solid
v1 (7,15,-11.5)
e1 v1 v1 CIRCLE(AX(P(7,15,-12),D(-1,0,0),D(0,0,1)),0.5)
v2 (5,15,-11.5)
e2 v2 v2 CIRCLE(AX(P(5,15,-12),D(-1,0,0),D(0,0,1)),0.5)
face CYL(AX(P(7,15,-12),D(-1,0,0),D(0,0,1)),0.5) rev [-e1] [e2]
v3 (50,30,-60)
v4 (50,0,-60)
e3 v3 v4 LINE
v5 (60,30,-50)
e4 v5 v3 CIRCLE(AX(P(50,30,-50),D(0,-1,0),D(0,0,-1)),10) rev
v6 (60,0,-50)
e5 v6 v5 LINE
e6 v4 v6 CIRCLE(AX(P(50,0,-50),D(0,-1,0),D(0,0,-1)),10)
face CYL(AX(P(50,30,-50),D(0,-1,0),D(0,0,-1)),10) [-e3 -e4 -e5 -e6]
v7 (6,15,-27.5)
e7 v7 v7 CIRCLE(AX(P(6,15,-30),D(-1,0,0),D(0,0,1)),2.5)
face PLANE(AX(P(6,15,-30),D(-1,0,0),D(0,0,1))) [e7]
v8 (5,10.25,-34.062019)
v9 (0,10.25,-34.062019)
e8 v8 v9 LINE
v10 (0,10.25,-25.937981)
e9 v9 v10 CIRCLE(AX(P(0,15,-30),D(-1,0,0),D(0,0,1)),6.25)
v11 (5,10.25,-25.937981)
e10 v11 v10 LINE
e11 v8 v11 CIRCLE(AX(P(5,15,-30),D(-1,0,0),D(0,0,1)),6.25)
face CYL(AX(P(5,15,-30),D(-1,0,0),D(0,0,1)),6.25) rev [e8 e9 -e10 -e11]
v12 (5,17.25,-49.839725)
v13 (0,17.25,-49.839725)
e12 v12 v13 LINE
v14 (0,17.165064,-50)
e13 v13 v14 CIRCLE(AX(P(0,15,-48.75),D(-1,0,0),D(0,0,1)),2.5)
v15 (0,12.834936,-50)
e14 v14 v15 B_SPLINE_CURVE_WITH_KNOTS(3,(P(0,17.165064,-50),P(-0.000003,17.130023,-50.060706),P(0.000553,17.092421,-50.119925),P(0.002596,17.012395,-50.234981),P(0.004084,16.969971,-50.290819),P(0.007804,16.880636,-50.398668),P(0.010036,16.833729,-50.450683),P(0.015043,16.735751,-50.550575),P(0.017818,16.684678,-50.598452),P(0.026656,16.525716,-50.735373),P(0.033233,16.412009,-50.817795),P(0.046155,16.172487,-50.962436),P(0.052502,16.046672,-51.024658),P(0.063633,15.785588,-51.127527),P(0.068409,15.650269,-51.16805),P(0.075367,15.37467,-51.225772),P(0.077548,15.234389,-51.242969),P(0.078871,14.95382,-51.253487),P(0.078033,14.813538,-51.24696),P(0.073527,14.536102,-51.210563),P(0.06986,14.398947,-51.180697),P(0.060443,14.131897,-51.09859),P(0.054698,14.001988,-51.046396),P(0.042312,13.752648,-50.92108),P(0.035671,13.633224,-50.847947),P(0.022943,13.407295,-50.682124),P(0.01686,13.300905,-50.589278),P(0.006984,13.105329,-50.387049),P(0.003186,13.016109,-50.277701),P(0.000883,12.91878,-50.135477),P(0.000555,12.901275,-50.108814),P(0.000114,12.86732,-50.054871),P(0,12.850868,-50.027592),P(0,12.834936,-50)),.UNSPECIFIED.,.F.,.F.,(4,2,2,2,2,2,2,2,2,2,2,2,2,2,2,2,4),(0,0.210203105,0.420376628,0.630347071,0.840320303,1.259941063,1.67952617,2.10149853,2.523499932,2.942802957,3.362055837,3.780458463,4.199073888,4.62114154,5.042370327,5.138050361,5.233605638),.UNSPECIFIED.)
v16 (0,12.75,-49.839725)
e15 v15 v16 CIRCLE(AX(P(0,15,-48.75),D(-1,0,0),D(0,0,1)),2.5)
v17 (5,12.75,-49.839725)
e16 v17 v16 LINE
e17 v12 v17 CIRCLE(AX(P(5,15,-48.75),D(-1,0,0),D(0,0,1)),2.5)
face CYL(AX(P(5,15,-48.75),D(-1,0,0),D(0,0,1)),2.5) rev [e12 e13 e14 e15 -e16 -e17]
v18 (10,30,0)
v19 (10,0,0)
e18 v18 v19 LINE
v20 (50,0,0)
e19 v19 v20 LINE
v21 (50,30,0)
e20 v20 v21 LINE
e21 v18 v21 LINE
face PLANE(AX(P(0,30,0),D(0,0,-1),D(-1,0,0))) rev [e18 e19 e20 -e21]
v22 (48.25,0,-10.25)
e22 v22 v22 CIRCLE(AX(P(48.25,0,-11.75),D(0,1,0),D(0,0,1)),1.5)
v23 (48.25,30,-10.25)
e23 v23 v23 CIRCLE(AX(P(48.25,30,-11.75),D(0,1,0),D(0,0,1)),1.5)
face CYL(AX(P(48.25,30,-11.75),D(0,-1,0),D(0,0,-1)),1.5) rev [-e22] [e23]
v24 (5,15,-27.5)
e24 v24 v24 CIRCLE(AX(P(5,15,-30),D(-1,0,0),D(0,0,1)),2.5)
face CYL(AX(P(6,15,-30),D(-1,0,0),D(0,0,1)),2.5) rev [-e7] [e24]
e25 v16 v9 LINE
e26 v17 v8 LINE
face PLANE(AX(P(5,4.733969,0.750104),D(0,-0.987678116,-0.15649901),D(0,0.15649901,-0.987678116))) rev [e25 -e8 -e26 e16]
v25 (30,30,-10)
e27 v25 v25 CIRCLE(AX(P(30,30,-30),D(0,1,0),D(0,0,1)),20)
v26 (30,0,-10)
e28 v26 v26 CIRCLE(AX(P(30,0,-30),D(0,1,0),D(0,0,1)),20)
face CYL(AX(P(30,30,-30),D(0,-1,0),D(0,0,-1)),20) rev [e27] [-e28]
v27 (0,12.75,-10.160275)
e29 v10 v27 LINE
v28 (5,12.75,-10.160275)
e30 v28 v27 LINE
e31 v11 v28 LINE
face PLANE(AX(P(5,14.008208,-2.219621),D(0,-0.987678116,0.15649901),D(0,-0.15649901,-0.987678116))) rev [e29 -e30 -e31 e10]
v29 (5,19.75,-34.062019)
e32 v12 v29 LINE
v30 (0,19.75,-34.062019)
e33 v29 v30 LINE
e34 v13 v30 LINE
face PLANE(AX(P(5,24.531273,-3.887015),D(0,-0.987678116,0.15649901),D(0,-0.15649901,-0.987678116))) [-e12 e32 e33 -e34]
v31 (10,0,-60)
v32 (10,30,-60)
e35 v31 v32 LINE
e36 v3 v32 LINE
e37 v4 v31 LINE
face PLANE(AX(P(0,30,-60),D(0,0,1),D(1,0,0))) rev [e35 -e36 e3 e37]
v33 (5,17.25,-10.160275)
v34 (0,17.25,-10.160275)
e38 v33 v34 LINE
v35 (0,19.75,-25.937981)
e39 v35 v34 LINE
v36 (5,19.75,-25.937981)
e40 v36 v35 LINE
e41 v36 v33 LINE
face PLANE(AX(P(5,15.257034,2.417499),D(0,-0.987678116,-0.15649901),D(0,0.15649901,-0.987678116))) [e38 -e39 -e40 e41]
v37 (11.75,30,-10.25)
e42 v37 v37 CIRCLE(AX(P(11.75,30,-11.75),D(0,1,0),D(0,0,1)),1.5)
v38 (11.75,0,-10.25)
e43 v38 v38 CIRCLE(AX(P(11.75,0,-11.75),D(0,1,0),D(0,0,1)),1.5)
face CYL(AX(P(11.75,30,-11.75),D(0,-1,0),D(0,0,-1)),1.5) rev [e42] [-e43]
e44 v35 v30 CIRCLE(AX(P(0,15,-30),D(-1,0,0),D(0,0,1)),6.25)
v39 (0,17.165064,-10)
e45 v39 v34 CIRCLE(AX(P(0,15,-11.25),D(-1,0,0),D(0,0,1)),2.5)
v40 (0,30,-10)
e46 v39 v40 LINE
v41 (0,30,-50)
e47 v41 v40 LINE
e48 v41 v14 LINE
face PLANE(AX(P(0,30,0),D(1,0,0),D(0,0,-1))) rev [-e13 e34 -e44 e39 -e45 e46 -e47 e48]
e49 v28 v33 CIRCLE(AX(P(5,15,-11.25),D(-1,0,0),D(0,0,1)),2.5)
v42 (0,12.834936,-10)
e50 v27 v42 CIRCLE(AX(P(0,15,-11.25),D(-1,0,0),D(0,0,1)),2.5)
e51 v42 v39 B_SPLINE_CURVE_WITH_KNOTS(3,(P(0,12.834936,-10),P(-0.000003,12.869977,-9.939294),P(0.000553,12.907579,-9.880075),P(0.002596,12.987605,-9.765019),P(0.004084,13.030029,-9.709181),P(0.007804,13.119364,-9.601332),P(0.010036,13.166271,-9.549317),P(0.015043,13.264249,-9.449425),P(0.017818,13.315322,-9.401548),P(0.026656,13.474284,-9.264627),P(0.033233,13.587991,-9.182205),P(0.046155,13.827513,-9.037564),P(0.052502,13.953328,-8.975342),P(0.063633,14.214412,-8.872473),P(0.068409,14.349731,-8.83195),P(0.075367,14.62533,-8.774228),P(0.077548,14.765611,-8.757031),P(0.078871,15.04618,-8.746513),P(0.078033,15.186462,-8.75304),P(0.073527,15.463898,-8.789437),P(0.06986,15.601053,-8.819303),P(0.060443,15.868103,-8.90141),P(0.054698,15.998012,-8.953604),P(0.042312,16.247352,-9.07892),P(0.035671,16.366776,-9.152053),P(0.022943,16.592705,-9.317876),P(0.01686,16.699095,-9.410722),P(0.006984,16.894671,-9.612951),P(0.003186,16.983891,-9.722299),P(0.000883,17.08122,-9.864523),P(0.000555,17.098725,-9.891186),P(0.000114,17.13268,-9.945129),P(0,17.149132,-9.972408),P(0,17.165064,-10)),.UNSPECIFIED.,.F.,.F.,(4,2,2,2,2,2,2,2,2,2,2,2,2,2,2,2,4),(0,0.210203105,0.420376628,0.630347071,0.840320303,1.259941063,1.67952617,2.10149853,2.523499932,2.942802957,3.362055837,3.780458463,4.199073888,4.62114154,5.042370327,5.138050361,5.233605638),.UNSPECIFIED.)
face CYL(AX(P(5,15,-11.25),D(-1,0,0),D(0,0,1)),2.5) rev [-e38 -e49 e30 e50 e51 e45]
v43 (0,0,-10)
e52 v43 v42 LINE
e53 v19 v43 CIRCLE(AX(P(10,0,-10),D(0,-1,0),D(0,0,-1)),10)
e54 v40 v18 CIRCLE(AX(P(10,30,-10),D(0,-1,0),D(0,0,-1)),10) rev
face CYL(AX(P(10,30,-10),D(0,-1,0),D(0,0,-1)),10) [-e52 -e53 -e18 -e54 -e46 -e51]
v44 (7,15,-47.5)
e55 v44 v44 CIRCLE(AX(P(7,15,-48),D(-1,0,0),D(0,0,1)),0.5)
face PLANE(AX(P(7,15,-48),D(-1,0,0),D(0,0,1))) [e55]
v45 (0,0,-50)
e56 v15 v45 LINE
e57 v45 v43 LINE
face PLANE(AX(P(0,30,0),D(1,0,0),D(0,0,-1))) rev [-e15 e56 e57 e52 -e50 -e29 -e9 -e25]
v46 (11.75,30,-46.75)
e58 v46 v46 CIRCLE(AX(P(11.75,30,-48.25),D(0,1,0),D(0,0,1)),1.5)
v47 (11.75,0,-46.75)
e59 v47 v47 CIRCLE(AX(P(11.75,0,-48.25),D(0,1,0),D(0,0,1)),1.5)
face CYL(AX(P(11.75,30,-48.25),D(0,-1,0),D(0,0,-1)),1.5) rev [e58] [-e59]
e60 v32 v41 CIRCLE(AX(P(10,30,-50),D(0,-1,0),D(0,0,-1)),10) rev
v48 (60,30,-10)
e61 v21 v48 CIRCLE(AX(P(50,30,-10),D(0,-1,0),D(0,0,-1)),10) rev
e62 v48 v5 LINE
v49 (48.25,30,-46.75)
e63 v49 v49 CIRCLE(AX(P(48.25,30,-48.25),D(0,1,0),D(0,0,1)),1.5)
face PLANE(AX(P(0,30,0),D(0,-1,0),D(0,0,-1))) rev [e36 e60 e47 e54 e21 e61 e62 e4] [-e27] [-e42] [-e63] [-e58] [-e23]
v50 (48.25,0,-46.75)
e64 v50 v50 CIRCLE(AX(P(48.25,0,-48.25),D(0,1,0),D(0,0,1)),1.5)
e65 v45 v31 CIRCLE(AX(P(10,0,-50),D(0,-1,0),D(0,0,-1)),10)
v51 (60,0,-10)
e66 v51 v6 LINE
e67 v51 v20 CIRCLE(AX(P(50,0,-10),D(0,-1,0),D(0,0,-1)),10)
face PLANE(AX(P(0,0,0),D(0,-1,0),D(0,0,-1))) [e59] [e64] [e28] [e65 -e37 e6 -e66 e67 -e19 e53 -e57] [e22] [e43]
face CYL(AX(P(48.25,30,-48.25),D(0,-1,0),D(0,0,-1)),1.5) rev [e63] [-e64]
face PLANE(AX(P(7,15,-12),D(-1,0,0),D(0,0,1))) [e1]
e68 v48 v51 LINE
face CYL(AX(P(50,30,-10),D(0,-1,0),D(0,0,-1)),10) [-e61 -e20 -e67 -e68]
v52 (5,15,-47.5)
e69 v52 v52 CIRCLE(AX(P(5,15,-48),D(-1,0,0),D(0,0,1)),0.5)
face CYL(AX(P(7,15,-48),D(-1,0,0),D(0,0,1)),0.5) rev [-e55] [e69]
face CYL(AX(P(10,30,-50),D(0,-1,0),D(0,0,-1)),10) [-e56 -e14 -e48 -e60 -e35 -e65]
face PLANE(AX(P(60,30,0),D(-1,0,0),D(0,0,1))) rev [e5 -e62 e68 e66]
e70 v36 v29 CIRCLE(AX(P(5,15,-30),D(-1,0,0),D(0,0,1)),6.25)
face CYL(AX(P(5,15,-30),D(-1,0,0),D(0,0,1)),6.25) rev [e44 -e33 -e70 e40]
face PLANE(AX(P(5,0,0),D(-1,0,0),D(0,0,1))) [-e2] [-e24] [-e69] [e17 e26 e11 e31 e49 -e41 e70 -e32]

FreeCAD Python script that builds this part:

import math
import FreeCAD as App
import Part
import Sketcher

V = App.Vector


def edges_at(feature, points):
    """Names of the edges that pass closest to the given points."""
    edges = feature.Shape.Edges
    near = lambda p: min(range(len(edges)), key=lambda i: edges[i].distToShape(Part.Vertex(*p))[0])
    return sorted({f"Edge{near(p) + 1}" for p in points})


def add_polygon(sketch, points):
    """Adds a closed chain of lines whose ends are joined by coincident constraints."""
    first, n = sketch.GeometryCount, len(points)
    for a, b in zip(points, points[1:] + points[:1]):
        sketch.addGeometry(Part.LineSegment(App.Vector(*a, 0), App.Vector(*b, 0)), False)
    for i in range(n):
        sketch.addConstraint(Sketcher.Constraint("Coincident", first + i, 2, first + (i + 1) % n, 1))

doc = App.newDocument("Part")
params = doc.addObject("Spreadsheet::Sheet", "Params")
for row, (alias, value) in enumerate([
    ("sketch1_diameter", "3 mm"),
    ("sketch1_diameter2", "40 mm"),
    ("sketch1_width", "60 mm"),
    ("pad1_length", "30 mm"),
    ("fillet_radius", "10 mm"),
    ("sketch2_radius", "2.5 mm"),
    ("sketch2_radius2", "6.25 mm"),
    ("pocket1_length", "5 mm"),
    ("sketch3_diameter", "5 mm"),
    ("pocket2_length", "1 mm"),
    ("sketch4_diameter", "1 mm"),
    ("pocket3_length", "2 mm"),
], start=1):
    params.set(f"A{row}", alias)
    params.set(f"B{row}", "=" + value)
    params.setAlias(f"B{row}", alias)

body = doc.addObject("PartDesign::Body", "Body")

# Sketch on XZ plane
sketch1 = body.newObject("Sketcher::SketchObject", "Sketch")
sketch1.AttachmentSupport = (doc.getObject("XZ_Plane"), [""])
sketch1.MapMode = "FlatFace"
add_polygon(sketch1, [(0, -60), (0, 0), (60, 0), (60, -60)])  # lines 0-3
sketch1.addGeometry(Part.Circle(V(11.8, -11.8, 0), V(0, 0, 1), 1.5), False)  # 4
sketch1.addGeometry(Part.Circle(V(48.2, -11.8, 0), V(0, 0, 1), 1.5), False)  # 5
sketch1.addGeometry(Part.Circle(V(11.8, -48.2, 0), V(0, 0, 1), 1.5), False)  # 6
sketch1.addGeometry(Part.Circle(V(30, -30, 0), V(0, 0, 1), 20), False)  # 7
sketch1.addGeometry(Part.Circle(V(48.2, -48.2, 0), V(0, 0, 1), 1.5), False)  # 8
sketch1.addConstraint([
    Sketcher.Constraint("Vertical", 0),
    Sketcher.Constraint("Horizontal", 1),
    Sketcher.Constraint("Vertical", 2),
    Sketcher.Constraint("Horizontal", 3),
    Sketcher.Constraint("Coincident", 0, 2, -1, 1),
    Sketcher.Constraint("Equal", 4, 5),
    Sketcher.Constraint("Equal", 5, 6),
    Sketcher.Constraint("Equal", 6, 8),
    Sketcher.Constraint("Horizontal", 4, 3, 5, 3),
    Sketcher.Constraint("Horizontal", 6, 3, 8, 3),
    Sketcher.Constraint("Vertical", 4, 3, 6, 3),
    Sketcher.Constraint("Vertical", 5, 3, 8, 3),
    Sketcher.Constraint("Equal", 3, 0),
    Sketcher.Constraint("Diameter", 4, 3.0),
    Sketcher.Constraint("Diameter", 7, 40.0),
    Sketcher.Constraint("DistanceX", 1, 1, 1, 2, 60.0),
    Sketcher.Constraint("DistanceX", -1, 1, 7, 3, 30.0),
    Sketcher.Constraint("DistanceY", 7, 3, -1, 1, 30.0),
    Sketcher.Constraint("DistanceX", 4, 3, 5, 3, 36.5),
    Sketcher.Constraint("DistanceY", 6, 3, 4, 3, 36.5),
    Sketcher.Constraint("DistanceX", -1, 1, 4, 3, 11.75),
    Sketcher.Constraint("DistanceY", 4, 3, -1, 1, 11.75),
])
sketch1.setExpression("Constraints[17]", "Params.sketch1_diameter")
sketch1.setExpression("Constraints[18]", "Params.sketch1_diameter2")
sketch1.setExpression("Constraints[19]", "Params.sketch1_width")
pad1 = body.newObject("PartDesign::Pad", "Pad")
pad1.Profile = sketch1
pad1.setExpression("Length", "Params.pad1_length")
pad1.Reversed = True
doc.recompute()

fillet = body.newObject("PartDesign::Fillet", "Fillet")
fillet.Base = (pad1, edges_at(pad1, [
    (0, 15, -60),
    (60, 15, -60),
    (60, 15, 0),
    (0, 15, 0),
]))
fillet.setExpression("Radius", "Params.fillet_radius")

# Sketch on YZ plane
sketch2 = body.newObject("Sketcher::SketchObject", "Sketch001")
sketch2.AttachmentSupport = (doc.getObject("YZ_Plane"), [""])
sketch2.MapMode = "FlatFace"
sketch2.addGeometry([
    Part.LineSegment(V(19.75, -34.06, 0), V(17.48, -48.41, 0)),  # 0
    Part.LineSegment(V(17.48, -48.41, 0), V(17.25, -49.84, 0)),  # 1
    Part.ArcOfCircle(Part.Circle(V(15, -48.75, 0), V(0, 0, 1), 2.5), math.radians(-30), math.radians(-25.84)),  # 2
    Part.ArcOfCircle(Part.Circle(V(15, -48.75, 0), V(0, 0, 1), 2.5), math.radians(-150), math.radians(-30)),  # 3
    Part.ArcOfCircle(Part.Circle(V(15, -48.75, 0), V(0, 0, 1), 2.5), math.radians(-154.16), math.radians(-150)),  # 4
    Part.LineSegment(V(12.75, -49.84, 0), V(12.52, -48.41, 0)),  # 5
    Part.LineSegment(V(12.52, -48.41, 0), V(10.25, -34.06, 0)),  # 6
    Part.ArcOfCircle(Part.Circle(V(15, -30, 0), V(0, 0, 1), 6.25), math.radians(139), math.radians(221)),  # 7
    Part.LineSegment(V(10.25, -25.94, 0), V(12.52, -11.59, 0)),  # 8
    Part.LineSegment(V(12.52, -11.59, 0), V(12.75, -10.16, 0)),  # 9
    Part.ArcOfCircle(Part.Circle(V(15, -11.25, 0), V(0, 0, 1), 2.5), math.radians(150), math.radians(154.16)),  # 10
    Part.ArcOfCircle(Part.Circle(V(15, -11.25, 0), V(0, 0, 1), 2.5), math.radians(90), math.radians(150)),  # 11
    Part.ArcOfCircle(Part.Circle(V(15, -11.25, 0), V(0, 0, 1), 2.5), math.radians(30), math.radians(90)),  # 12
    Part.ArcOfCircle(Part.Circle(V(15, -11.25, 0), V(0, 0, 1), 2.5), math.radians(25.84), math.radians(30)),  # 13
    Part.LineSegment(V(17.25, -10.16, 0), V(17.48, -11.59, 0)),  # 14
    Part.LineSegment(V(17.48, -11.59, 0), V(19.75, -25.94, 0)),  # 15
    Part.ArcOfCircle(Part.Circle(V(15, -30, 0), V(0, 0, 1), 6.25), math.radians(-41), math.radians(41)),  # 16
], False)
sketch2.addConstraint([
    Sketcher.Constraint("Coincident", 0, 2, 1, 1),
    Sketcher.Constraint("Coincident", 1, 2, 2, 2),
    Sketcher.Constraint("Tangent", 2, 1, 3, 2),
    Sketcher.Constraint("Tangent", 3, 1, 4, 2),
    Sketcher.Constraint("Coincident", 4, 1, 5, 1),
    Sketcher.Constraint("Coincident", 5, 2, 6, 1),
    Sketcher.Constraint("Coincident", 6, 2, 7, 2),
    Sketcher.Constraint("Coincident", 7, 1, 8, 1),
    Sketcher.Constraint("Coincident", 8, 2, 9, 1),
    Sketcher.Constraint("Coincident", 9, 2, 10, 2),
    Sketcher.Constraint("Tangent", 10, 1, 11, 2),
    Sketcher.Constraint("Tangent", 11, 1, 12, 2),
    Sketcher.Constraint("Tangent", 12, 1, 13, 2),
    Sketcher.Constraint("Coincident", 13, 1, 14, 1),
    Sketcher.Constraint("Coincident", 14, 2, 15, 1),
    Sketcher.Constraint("Coincident", 15, 2, 16, 2),
    Sketcher.Constraint("Coincident", 16, 1, 0, 1),
    Sketcher.Constraint("Coincident", 4, 3, 2, 3),
    Sketcher.Constraint("Coincident", 12, 3, 10, 3),
    Sketcher.Constraint("Coincident", 16, 3, 7, 3),
    Sketcher.Constraint("Equal", 4, 10),
    Sketcher.Constraint("Equal", 12, 13),
    Sketcher.Constraint("Equal", 7, 16),
    Sketcher.Constraint("Parallel", 0, 1),
    Sketcher.Constraint("Parallel", 5, 6),
    Sketcher.Constraint("Parallel", 1, 8),
    Sketcher.Constraint("Parallel", 8, 9),
    Sketcher.Constraint("Parallel", 6, 14),
    Sketcher.Constraint("Parallel", 14, 15),
    Sketcher.Constraint("Horizontal", 2, 1, 3, 1),
    Sketcher.Constraint("Horizontal", 1, 2, 4, 1),
    Sketcher.Constraint("Horizontal", 0, 2, 5, 2),
    Sketcher.Constraint("Horizontal", 10, 1, 12, 1),
    Sketcher.Constraint("Horizontal", 9, 2, 13, 1),
    Sketcher.Constraint("Horizontal", 8, 2, 14, 2),
    Sketcher.Constraint("Horizontal", 7, 1, 15, 2),
    Sketcher.Constraint("Horizontal", 6, 2, 16, 1),
    Sketcher.Constraint("Vertical", 4, 3, 7, 3),
    Sketcher.Constraint("Vertical", 6, 2, 7, 1),
    Sketcher.Constraint("Vertical", 5, 2, 8, 2),
    Sketcher.Constraint("Vertical", 4, 1, 9, 2),
    Sketcher.Constraint("Vertical", 3, 1, 10, 1),
    Sketcher.Constraint("Vertical", 16, 3, 11, 1),
    Sketcher.Constraint("Radius", 2, 2.5),
    Sketcher.Constraint("Radius", 7, 6.25),
    Sketcher.Constraint("DistanceX", -1, 1, 2, 3, 15.0),
    Sketcher.Constraint("DistanceY", 7, 3, -1, 1, 30.0),
    Sketcher.Constraint("DistanceY", 2, 1, -1, 1, 50.0),
    Sketcher.Constraint("DistanceY", 3, 3, 10, 3, 37.5),
    Sketcher.Constraint("DistanceX", 7, 1, 15, 2, 9.5),
    Sketcher.Constraint("DistanceX", -1, 1, 1, 2, 17.25),
    Sketcher.Constraint("DistanceX", 2, 1, 0, 2, 0.311602),
])
sketch2.setExpression("Constraints[43]", "Params.sketch2_radius")
sketch2.setExpression("Constraints[44]", "Params.sketch2_radius2")
pocket1 = body.newObject("PartDesign::Pocket", "Pocket")
pocket1.Profile = sketch2
pocket1.setExpression("Length", "Params.pocket1_length")
pocket1.Reversed = True

# Sketch on YZ plane
sketch3 = body.newObject("Sketcher::SketchObject", "Sketch002")
sketch3.AttachmentSupport = (doc.getObject("YZ_Plane"), [""])
sketch3.MapMode = "FlatFace"
sketch3.AttachmentOffset = App.Placement(V(0, 0, 5), App.Rotation())
sketch3.addGeometry(Part.Circle(V(15, -30, 0), V(0, 0, 1), 2.5), False)
sketch3.addConstraint([
    Sketcher.Constraint("Diameter", 0, 5.0),
    Sketcher.Constraint("DistanceX", -1, 1, 0, 3, 15.0),
    Sketcher.Constraint("DistanceY", 0, 3, -1, 1, 30.0),
])
sketch3.setExpression("Constraints[0]", "Params.sketch3_diameter")
pocket2 = body.newObject("PartDesign::Pocket", "Pocket001")
pocket2.Profile = sketch3
pocket2.setExpression("Length", "Params.pocket2_length")
pocket2.Reversed = True

# Sketch on YZ plane
sketch4 = body.newObject("Sketcher::SketchObject", "Sketch003")
sketch4.AttachmentSupport = (doc.getObject("YZ_Plane"), [""])
sketch4.MapMode = "FlatFace"
sketch4.AttachmentOffset = App.Placement(V(0, 0, 5), App.Rotation())
sketch4.addGeometry([
    Part.Circle(V(15, -12, 0), V(0, 0, 1), 0.5),
    Part.Circle(V(15, -48, 0), V(0, 0, 1), 0.5),
], False)
sketch4.addConstraint([
    Sketcher.Constraint("Equal", 0, 1),
    Sketcher.Constraint("Vertical", 0, 3, 1, 3),
    Sketcher.Constraint("Diameter", 0, 1.0),
    Sketcher.Constraint("DistanceX", -1, 1, 0, 3, 15.0),
    Sketcher.Constraint("DistanceY", 0, 3, -1, 1, 12.0),
    Sketcher.Constraint("DistanceY", 1, 3, -1, 1, 48.0),
])
sketch4.setExpression("Constraints[2]", "Params.sketch4_diameter")
pocket3 = body.newObject("PartDesign::Pocket", "Pocket002")
pocket3.Profile = sketch4
pocket3.setExpression("Length", "Params.pocket3_length")
pocket3.Reversed = True

doc.recompute()
